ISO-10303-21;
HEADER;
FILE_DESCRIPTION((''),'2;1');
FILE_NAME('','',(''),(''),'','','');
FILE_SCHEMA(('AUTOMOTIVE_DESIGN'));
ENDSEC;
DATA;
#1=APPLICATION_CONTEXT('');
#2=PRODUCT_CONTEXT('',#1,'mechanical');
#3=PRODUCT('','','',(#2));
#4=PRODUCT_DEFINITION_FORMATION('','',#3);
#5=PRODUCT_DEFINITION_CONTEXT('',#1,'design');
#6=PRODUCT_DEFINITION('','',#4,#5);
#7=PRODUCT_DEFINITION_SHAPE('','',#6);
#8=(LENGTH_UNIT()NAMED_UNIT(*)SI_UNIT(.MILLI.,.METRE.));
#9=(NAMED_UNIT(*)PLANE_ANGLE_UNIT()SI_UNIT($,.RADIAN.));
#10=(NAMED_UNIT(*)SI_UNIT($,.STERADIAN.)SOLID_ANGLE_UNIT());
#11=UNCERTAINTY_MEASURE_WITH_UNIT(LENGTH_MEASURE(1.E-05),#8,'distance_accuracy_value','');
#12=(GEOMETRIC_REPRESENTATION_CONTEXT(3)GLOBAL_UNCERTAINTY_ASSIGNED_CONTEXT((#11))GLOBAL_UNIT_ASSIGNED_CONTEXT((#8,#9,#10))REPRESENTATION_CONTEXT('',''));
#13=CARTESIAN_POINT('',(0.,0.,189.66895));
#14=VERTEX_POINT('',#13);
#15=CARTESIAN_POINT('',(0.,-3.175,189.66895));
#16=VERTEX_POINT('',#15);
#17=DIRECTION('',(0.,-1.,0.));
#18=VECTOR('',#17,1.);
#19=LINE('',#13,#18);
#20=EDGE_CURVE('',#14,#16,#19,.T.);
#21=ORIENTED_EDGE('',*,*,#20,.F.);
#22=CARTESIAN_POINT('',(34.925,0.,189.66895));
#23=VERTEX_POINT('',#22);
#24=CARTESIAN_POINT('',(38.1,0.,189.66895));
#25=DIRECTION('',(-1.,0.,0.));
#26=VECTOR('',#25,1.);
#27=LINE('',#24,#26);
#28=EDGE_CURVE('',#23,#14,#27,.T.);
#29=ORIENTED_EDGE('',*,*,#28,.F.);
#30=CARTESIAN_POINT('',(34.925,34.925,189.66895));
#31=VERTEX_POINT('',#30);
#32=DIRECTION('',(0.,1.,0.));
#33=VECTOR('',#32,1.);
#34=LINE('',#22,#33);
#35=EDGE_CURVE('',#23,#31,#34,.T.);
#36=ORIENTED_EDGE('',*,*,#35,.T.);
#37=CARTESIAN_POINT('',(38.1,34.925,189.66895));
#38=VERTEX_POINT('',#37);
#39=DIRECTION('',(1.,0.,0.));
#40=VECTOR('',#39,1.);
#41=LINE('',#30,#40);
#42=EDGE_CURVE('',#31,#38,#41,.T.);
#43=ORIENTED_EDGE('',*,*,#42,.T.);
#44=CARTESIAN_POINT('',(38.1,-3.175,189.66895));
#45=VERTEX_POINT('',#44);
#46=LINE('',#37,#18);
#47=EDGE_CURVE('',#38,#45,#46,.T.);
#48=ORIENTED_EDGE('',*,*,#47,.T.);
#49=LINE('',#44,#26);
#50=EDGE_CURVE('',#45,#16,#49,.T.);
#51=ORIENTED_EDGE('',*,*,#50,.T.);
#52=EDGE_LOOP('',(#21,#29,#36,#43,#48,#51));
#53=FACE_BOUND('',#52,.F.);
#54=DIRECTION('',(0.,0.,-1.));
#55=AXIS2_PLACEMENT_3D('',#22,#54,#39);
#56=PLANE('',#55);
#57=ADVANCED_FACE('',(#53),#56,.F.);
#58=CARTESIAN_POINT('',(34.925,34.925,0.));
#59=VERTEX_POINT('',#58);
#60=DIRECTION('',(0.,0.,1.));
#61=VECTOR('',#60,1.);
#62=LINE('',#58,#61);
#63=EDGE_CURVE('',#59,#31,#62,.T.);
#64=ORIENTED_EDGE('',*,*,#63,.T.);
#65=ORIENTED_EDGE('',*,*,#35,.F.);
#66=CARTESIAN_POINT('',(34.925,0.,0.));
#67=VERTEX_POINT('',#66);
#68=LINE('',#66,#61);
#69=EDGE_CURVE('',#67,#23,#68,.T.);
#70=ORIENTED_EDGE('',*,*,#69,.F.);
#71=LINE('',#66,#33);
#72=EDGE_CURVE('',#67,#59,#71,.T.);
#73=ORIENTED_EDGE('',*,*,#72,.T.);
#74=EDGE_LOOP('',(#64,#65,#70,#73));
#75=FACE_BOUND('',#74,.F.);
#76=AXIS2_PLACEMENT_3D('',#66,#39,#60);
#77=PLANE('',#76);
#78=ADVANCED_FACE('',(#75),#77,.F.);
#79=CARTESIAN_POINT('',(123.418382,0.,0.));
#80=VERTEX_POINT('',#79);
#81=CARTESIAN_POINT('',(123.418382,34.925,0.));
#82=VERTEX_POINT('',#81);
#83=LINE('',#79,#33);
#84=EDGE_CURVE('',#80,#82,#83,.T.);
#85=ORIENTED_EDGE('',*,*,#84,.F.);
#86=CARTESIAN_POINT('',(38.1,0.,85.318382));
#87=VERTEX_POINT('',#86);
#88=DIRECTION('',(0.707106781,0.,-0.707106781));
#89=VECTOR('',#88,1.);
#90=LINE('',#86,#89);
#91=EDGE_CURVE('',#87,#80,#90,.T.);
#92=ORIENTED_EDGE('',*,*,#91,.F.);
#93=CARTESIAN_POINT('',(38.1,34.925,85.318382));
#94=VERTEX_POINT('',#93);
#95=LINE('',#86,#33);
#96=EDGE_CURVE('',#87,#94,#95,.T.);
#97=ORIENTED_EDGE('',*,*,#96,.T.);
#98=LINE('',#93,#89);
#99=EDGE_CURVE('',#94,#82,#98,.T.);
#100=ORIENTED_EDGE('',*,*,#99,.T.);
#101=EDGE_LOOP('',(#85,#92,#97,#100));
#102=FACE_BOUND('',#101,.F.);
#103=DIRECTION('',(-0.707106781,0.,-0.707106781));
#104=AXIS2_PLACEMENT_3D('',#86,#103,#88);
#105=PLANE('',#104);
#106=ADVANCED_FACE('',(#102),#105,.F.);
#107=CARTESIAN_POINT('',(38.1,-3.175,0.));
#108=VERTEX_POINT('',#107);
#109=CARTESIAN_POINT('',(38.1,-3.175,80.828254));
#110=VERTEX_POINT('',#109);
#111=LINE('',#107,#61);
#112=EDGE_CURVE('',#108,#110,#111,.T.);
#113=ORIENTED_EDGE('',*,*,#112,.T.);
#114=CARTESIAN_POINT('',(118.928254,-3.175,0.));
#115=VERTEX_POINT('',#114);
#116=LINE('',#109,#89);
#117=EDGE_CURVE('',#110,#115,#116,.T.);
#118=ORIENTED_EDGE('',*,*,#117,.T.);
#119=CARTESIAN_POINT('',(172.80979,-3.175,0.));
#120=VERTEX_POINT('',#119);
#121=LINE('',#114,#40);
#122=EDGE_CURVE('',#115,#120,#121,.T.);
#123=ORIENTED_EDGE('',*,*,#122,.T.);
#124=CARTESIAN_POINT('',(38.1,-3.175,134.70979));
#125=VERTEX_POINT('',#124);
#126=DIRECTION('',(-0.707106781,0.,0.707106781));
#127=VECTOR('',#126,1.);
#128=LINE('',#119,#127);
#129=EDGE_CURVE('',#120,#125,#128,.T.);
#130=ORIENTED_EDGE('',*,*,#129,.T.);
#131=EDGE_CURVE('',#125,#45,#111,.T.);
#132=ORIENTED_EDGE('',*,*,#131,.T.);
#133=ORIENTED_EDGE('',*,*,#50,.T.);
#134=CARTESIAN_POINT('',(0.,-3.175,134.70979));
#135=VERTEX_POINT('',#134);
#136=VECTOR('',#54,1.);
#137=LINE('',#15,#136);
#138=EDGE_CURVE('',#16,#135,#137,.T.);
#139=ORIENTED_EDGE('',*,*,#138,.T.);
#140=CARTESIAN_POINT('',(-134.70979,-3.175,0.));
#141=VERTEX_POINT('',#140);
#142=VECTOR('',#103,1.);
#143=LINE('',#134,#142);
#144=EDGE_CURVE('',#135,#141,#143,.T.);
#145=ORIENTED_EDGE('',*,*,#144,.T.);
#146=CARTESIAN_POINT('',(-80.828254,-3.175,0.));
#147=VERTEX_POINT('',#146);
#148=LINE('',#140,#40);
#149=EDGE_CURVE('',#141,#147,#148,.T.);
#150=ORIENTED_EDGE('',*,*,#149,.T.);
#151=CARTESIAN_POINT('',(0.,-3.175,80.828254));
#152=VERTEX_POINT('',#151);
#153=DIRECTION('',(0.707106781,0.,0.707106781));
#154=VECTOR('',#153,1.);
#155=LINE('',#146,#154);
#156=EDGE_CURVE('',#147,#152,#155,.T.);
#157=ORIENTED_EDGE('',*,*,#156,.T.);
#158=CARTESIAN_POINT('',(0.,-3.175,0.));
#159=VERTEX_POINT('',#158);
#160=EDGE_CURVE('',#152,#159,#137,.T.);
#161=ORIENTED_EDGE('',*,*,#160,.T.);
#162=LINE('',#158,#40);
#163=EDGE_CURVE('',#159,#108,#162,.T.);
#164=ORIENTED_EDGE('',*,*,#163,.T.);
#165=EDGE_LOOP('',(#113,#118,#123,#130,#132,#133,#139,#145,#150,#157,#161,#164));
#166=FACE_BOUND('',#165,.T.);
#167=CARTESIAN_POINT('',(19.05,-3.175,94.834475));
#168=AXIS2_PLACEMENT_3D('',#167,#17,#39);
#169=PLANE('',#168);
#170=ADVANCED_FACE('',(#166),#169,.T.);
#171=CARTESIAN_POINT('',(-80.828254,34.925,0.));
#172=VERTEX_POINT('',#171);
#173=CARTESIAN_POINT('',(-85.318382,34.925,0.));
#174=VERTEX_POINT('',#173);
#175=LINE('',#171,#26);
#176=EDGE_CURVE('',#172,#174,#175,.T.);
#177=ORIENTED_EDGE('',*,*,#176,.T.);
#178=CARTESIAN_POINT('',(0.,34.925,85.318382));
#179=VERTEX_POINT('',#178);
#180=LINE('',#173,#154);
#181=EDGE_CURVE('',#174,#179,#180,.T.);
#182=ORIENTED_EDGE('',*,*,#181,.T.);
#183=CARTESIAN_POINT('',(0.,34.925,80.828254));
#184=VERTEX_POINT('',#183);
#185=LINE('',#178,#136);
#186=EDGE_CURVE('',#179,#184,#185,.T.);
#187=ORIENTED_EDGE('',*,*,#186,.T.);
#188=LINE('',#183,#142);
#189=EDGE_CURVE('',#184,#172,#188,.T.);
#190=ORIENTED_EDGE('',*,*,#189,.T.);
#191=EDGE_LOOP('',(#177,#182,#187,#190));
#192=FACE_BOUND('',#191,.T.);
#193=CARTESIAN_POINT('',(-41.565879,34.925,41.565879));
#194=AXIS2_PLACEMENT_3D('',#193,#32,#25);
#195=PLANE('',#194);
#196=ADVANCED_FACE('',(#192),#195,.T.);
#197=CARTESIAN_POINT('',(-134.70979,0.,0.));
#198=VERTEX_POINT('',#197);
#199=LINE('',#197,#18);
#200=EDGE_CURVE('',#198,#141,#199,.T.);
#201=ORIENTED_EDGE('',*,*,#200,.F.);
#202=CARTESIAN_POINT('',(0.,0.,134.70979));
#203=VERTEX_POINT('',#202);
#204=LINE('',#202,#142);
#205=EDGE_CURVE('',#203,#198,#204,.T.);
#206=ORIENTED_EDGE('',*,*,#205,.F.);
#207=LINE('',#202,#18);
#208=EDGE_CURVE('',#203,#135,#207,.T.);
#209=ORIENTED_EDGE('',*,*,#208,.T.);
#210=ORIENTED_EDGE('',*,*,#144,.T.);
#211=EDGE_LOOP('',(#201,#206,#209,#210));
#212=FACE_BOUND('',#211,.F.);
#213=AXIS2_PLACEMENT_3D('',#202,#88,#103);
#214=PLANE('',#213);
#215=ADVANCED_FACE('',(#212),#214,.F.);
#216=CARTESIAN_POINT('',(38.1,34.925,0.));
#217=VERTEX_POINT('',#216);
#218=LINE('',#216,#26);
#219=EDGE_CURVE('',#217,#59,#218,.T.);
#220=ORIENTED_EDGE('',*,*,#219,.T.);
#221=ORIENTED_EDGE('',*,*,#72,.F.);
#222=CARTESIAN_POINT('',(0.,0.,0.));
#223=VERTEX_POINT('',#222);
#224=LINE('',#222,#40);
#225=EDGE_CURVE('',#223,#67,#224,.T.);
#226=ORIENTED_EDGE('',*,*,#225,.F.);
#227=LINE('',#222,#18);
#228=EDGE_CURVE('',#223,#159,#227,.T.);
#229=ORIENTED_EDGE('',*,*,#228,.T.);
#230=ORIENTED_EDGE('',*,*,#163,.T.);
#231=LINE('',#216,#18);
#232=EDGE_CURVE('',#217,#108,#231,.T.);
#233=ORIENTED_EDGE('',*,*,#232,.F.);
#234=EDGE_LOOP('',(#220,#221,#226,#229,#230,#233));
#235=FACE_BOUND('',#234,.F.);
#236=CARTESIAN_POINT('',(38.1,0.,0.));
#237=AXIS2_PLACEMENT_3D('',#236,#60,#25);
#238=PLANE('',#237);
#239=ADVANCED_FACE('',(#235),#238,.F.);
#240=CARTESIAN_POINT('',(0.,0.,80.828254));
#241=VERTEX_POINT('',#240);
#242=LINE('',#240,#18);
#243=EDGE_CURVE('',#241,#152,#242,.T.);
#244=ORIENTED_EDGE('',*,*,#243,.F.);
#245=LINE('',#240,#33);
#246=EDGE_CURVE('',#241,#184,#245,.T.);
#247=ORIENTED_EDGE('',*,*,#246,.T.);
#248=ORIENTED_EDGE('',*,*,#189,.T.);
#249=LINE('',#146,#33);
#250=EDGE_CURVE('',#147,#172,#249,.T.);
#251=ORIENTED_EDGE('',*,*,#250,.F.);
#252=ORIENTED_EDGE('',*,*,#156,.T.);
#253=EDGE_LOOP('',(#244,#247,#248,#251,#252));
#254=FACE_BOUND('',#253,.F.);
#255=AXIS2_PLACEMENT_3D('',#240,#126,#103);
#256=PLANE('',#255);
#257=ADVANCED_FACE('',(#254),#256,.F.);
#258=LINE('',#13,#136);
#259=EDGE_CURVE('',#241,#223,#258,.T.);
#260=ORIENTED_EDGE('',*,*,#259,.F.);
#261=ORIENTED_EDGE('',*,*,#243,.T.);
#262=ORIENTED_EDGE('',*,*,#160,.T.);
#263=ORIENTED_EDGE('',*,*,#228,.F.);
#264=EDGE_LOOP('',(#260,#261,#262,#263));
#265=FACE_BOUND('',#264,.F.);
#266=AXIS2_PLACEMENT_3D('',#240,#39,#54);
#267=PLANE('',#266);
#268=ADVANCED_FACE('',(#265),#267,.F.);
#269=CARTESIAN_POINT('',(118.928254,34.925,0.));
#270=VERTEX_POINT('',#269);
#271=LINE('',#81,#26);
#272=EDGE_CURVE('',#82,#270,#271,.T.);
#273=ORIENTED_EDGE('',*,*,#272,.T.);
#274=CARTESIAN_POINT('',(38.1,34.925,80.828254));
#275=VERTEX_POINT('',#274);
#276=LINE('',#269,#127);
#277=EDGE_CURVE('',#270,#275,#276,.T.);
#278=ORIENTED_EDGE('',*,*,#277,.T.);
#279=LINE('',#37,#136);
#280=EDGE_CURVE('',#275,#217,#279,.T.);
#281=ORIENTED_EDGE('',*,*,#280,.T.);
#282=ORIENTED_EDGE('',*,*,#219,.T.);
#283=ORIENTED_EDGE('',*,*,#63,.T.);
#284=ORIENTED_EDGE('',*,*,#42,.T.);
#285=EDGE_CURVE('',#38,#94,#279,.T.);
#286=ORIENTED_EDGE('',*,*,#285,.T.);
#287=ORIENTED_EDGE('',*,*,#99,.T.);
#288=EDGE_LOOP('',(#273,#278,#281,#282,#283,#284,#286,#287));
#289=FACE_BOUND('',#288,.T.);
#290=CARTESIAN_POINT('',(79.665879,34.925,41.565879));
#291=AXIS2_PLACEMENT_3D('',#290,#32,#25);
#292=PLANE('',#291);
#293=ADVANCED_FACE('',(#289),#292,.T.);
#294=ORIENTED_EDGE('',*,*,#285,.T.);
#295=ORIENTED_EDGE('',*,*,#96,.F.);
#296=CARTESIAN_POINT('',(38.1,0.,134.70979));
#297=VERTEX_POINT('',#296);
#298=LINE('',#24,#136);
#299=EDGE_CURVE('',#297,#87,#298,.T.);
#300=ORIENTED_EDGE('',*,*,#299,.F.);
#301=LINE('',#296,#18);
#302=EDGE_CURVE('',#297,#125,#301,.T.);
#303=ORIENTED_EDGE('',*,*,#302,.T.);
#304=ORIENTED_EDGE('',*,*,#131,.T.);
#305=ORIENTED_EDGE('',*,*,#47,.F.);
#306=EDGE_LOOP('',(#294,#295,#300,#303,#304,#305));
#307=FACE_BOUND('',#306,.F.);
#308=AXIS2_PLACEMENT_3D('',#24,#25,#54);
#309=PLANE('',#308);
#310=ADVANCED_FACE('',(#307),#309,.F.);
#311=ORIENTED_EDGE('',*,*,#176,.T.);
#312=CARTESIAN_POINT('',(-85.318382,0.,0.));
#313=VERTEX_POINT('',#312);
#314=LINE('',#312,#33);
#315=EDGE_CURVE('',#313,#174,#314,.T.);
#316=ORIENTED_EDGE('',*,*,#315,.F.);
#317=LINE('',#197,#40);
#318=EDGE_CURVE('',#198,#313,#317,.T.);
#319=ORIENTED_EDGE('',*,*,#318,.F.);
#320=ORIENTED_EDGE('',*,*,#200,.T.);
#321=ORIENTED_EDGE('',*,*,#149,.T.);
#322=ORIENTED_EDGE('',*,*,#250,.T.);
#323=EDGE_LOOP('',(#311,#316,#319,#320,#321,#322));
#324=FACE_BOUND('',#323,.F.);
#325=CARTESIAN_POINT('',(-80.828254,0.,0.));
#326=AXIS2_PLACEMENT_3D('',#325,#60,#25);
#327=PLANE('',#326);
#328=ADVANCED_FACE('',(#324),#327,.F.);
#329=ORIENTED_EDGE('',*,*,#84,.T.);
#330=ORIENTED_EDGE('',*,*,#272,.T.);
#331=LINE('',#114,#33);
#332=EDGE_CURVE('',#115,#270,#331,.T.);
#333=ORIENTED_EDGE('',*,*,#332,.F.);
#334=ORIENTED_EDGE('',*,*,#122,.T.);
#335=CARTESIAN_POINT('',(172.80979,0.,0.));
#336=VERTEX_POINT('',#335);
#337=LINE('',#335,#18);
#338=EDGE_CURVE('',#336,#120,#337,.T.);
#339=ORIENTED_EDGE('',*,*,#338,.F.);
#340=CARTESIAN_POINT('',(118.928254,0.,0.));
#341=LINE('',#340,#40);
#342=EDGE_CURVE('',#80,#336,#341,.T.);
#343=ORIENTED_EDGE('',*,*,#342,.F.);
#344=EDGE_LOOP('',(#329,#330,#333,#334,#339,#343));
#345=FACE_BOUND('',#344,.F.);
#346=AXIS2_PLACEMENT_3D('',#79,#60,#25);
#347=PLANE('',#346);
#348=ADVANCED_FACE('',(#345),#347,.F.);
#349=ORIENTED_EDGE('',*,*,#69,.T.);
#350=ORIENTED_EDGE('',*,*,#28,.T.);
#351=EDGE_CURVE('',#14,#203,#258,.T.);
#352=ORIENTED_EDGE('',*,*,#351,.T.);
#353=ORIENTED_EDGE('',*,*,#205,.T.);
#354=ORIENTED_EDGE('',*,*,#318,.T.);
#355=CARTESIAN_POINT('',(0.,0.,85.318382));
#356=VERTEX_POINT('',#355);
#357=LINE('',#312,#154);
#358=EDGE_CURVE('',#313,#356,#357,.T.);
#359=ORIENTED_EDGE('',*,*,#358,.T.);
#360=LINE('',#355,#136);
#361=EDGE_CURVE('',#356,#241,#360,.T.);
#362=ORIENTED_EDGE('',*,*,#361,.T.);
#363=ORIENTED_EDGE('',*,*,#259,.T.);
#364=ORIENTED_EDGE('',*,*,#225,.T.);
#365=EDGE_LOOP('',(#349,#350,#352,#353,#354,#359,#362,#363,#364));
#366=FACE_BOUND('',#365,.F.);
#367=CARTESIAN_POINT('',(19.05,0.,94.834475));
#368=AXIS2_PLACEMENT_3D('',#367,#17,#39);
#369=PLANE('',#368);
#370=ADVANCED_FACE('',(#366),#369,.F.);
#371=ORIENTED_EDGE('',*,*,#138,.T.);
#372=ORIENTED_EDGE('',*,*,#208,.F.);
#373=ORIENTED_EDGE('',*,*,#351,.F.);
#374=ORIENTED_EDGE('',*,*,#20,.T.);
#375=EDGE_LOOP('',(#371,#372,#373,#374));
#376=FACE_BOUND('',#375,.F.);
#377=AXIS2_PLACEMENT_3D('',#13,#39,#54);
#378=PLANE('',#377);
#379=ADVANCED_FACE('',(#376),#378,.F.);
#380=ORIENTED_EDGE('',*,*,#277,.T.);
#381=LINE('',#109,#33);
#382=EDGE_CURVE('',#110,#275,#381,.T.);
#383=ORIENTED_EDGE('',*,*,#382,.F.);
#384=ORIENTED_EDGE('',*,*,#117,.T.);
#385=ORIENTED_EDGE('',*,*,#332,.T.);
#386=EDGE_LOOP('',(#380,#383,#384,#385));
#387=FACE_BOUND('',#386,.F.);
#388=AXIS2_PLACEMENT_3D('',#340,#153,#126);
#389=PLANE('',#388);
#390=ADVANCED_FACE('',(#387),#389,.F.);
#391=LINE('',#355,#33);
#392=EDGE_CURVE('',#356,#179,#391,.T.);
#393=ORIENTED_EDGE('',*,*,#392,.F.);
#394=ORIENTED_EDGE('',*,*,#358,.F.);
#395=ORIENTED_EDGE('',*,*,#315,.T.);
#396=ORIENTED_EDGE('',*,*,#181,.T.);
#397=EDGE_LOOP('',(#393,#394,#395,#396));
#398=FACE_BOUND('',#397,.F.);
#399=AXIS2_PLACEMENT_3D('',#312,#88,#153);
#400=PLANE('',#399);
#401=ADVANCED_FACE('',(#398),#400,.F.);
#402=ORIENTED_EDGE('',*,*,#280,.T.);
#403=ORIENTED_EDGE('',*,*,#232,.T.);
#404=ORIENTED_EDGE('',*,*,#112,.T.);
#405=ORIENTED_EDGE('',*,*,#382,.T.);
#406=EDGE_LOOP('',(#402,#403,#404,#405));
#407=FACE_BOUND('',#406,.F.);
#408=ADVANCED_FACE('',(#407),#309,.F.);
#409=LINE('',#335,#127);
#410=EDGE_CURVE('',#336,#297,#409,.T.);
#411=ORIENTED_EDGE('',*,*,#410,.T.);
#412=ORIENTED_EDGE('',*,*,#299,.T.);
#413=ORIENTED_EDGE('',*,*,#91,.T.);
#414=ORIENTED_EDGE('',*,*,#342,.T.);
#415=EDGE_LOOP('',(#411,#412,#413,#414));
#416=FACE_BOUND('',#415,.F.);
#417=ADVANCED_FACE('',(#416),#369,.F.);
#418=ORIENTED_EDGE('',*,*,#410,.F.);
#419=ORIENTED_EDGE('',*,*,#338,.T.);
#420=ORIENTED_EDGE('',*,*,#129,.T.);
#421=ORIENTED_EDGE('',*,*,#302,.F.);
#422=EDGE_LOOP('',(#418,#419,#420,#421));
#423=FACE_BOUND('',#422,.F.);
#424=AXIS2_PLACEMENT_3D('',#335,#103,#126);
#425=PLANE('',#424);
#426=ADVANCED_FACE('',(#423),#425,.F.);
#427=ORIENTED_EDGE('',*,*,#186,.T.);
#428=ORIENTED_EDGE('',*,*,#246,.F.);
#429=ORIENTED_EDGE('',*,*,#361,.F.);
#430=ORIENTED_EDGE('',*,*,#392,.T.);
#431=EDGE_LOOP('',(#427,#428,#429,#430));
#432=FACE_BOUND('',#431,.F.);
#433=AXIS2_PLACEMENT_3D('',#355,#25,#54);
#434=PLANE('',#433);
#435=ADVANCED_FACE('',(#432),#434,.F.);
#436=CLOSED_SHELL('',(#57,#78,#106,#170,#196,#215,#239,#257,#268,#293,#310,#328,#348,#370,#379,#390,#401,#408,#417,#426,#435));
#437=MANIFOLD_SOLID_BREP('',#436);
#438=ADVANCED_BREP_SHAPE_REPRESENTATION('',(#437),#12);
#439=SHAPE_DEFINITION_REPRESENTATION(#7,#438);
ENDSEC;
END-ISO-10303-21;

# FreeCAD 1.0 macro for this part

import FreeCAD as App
import Part
import Sketcher

V = App.Vector
Q = App.Units.Quantity


def add_polygon(sketch, points):
    """Adds a closed chain of lines whose ends are joined by coincident constraints."""
    first, n = sketch.GeometryCount, len(points)
    for a, b in zip(points, points[1:] + points[:1]):
        sketch.addGeometry(Part.LineSegment(App.Vector(*a, 0), App.Vector(*b, 0)), False)
    for i in range(n):
        sketch.addConstraint(Sketcher.Constraint("Coincident", first + i, 2, first + (i + 1) % n, 1))

doc = App.newDocument("Part")
params = doc.addObject("Spreadsheet::Sheet", "Params")
for row, (alias, value) in enumerate([
    ("sketch1_width", "1.5 in"),
    ("pad1_length", "0.125 in"),
    ("sketch2_width", "0.125 in"),
    ("pad2_length", "1.375 in"),
    ("pad3_length", "1.375 in"),
    ("pad4_length", "1.375 in"),
], start=1):
    params.set(f"A{row}", alias)
    params.set(f"B{row}", "=" + value)
    params.setAlias(f"B{row}", alias)

body = doc.addObject("PartDesign::Body", "Body")

# Sketch on XZ plane
sketch1 = body.newObject("Sketcher::SketchObject", "Sketch")
sketch1.AttachmentSupport = (doc.getObject("XZ_Plane"), [""])
sketch1.MapMode = "FlatFace"
add_polygon(sketch1, [(0, 0), (38.1, 0), (38.1, 80.828254), (118.928254, 0), (172.80979, 0), (38.1, 134.70979), (38.1, 189.66895), (0, 189.66895), (0, 134.70979), (-134.70979, 0), (-80.828254, 0), (0, 80.828254)])  # lines 0-11
sketch1.addConstraint(Sketcher.Constraint("Horizontal", 0))
sketch1.addConstraint(Sketcher.Constraint("Vertical", 1))
sketch1.addConstraint(Sketcher.Constraint("Horizontal", 3))
sketch1.addConstraint(Sketcher.Constraint("Vertical", 5))
sketch1.addConstraint(Sketcher.Constraint("Horizontal", 6))
sketch1.addConstraint(Sketcher.Constraint("Vertical", 7))
sketch1.addConstraint(Sketcher.Constraint("Horizontal", 9))
sketch1.addConstraint(Sketcher.Constraint("Vertical", 11))
sketch1.addConstraint(Sketcher.Constraint("Coincident", 11, 2, -1, 1))
sketch1.addConstraint(Sketcher.Constraint("PointOnObject", 2, 2, -1))
sketch1.addConstraint(Sketcher.Constraint("PointOnObject", 6, 2, -2))
sketch1.addConstraint(Sketcher.Constraint("PointOnObject", 8, 2, -1))
sketch1.addConstraint(Sketcher.Constraint("Parallel", 2, 4))
sketch1.addConstraint(Sketcher.Constraint("Perpendicular", 4, 8))
sketch1.addConstraint(Sketcher.Constraint("Parallel", 8, 10))
sketch1.addConstraint(Sketcher.Constraint("Horizontal", 4, 2, 7, 2))
sketch1.addConstraint(Sketcher.Constraint("Horizontal", 1, 2, 10, 2))
sketch1.addConstraint(Sketcher.Constraint("Vertical", 1, 2, 4, 2))
sketch1.addConstraint(Sketcher.Constraint("Equal", 3, 9))
sketch1.addConstraint(Sketcher.Constraint("DistanceX", 0, 1, 0, 2, Q("1.5 in")))
sketch1.addConstraint(Sketcher.Constraint("DistanceY", 5, 1, 5, 2, Q("54.95916 mm")))
sketch1.addConstraint(Sketcher.Constraint("DistanceX", 3, 1, 3, 2, Q("53.881536 mm")))
sketch1.addConstraint(Sketcher.Constraint("DistanceY", 1, 1, 1, 2, Q("80.828254 mm")))
sketch1.setExpression("Constraints[31]", "Params.sketch1_width")
pad1 = body.newObject("PartDesign::Pad", "Pad")
pad1.Profile = sketch1
pad1.setExpression("Length", "Params.pad1_length")

# Sketch on XZ plane
sketch2 = body.newObject("Sketcher::SketchObject", "Sketch001")
sketch2.AttachmentSupport = (doc.getObject("XZ_Plane"), [""])
sketch2.MapMode = "FlatFace"
add_polygon(sketch2, [(38.1, 0), (34.925, 0), (34.925, 189.66895), (38.1, 189.66895)])  # lines 0-3
sketch2.addConstraint(Sketcher.Constraint("Horizontal", 0))
sketch2.addConstraint(Sketcher.Constraint("Vertical", 1))
sketch2.addConstraint(Sketcher.Constraint("Horizontal", 2))
sketch2.addConstraint(Sketcher.Constraint("Vertical", 3))
sketch2.addConstraint(Sketcher.Constraint("PointOnObject", 0, 2, -1))
sketch2.addConstraint(Sketcher.Constraint("DistanceX", -1, 1, 2, 2, Q("1.5 in")))
sketch2.addConstraint(Sketcher.Constraint("DistanceX", 0, 2, 0, 1, Q("0.125 in")))
sketch2.addConstraint(Sketcher.Constraint("DistanceY", 1, 1, 1, 2, Q("189.66895 mm")))
sketch2.setExpression("Constraints[10]", "Params.sketch2_width")
pad2 = body.newObject("PartDesign::Pad", "Pad001")
pad2.Profile = sketch2
pad2.setExpression("Length", "Params.pad2_length")
pad2.Reversed = True

# Sketch on XZ plane
sketch3 = body.newObject("Sketcher::SketchObject", "Sketch002")
sketch3.AttachmentSupport = (doc.getObject("XZ_Plane"), [""])
sketch3.MapMode = "FlatFace"
add_polygon(sketch3, [(123.418382, 0), (118.928254, 0), (38.1, 80.828254), (38.1, 85.318382)])  # lines 0-3
sketch3.addConstraint(Sketcher.Constraint("Horizontal", 0))
sketch3.addConstraint(Sketcher.Constraint("Vertical", 2))
sketch3.addConstraint(Sketcher.Constraint("PointOnObject", 0, 2, -1))
sketch3.addConstraint(Sketcher.Constraint("Parallel", 1, 3))
sketch3.addConstraint(Sketcher.Constraint("Equal", 0, 2))
sketch3.addConstraint(Sketcher.Constraint("DistanceX", -1, 1, 1, 2, Q("1.5 in")))
sketch3.addConstraint(Sketcher.Constraint("DistanceX", 0, 2, 0, 1, Q("4.490128 mm")))
sketch3.addConstraint(Sketcher.Constraint("DistanceY", -1, 1, 2, 2, Q("85.318382 mm")))
pad3 = body.newObject("PartDesign::Pad", "Pad002")
pad3.Profile = sketch3
pad3.setExpression("Length", "Params.pad3_length")
pad3.Reversed = True

# Sketch on XZ plane
sketch4 = body.newObject("Sketcher::SketchObject", "Sketch003")
sketch4.AttachmentSupport = (doc.getObject("XZ_Plane"), [""])
sketch4.MapMode = "FlatFace"
add_polygon(sketch4, [(0, 80.828254), (-80.828254, 0), (-85.318382, 0), (0, 85.318382)])  # lines 0-3
sketch4.addConstraint(Sketcher.Constraint("Horizontal", 1))
sketch4.addConstraint(Sketcher.Constraint("Vertical", 3))
sketch4.addConstraint(Sketcher.Constraint("PointOnObject", 0, 2, -1))
sketch4.addConstraint(Sketcher.Constraint("PointOnObject", 2, 2, -2))
sketch4.addConstraint(Sketcher.Constraint("Parallel", 0, 2))
sketch4.addConstraint(Sketcher.Constraint("Equal", 1, 3))
sketch4.addConstraint(Sketcher.Constraint("DistanceX", 1, 2, 1, 1, Q("4.490128 mm")))
sketch4.addConstraint(Sketcher.Constraint("DistanceX", 1, 2, -1, 1, Q("85.318382 mm")))
pad4 = body.newObject("PartDesign::Pad", "Pad003")
pad4.Profile = sketch4
pad4.setExpression("Length", "Params.pad4_length")
pad4.Reversed = True

doc.recompute()
